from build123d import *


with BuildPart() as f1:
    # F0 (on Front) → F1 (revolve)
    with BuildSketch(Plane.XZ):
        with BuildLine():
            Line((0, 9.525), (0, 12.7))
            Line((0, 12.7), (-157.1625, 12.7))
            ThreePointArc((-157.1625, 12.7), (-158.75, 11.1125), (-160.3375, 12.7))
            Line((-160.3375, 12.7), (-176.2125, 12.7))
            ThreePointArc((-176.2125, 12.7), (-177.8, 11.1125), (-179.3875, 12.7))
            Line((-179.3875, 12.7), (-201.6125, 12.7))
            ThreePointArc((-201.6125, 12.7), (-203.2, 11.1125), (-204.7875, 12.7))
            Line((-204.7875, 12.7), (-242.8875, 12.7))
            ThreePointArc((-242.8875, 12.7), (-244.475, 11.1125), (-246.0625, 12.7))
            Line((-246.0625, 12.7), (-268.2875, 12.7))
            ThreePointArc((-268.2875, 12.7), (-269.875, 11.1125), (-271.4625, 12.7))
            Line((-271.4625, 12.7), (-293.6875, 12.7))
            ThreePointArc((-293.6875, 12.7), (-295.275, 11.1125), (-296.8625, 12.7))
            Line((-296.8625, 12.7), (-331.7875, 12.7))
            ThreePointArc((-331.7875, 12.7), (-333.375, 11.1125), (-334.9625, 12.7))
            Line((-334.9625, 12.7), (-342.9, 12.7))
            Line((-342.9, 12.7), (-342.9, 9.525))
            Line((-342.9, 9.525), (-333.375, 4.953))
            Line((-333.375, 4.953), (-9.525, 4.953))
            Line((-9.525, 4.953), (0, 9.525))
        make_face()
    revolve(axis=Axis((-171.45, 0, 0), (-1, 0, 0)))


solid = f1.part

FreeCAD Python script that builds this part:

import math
import FreeCAD as App
import Part
import Sketcher

V = App.Vector
Q = App.Units.Quantity

doc = App.newDocument("Part")
params = doc.addObject("Spreadsheet::Sheet", "Params")
for row, (alias, value) in enumerate([
    ("sketch1_width", "1.5 in"),
    ("sketch1_radius", "0.0625 in"),
    ("sketch1_width2", "12.75 in"),
    ("sketch1_width3", "6.1875 in"),
    ("sketch1_height", "0.125 in"),
    ("revolution_angle", "360 deg"),
], start=1):
    params.set(f"A{row}", alias)
    params.set(f"B{row}", "=" + value)
    params.setAlias(f"B{row}", alias)

body = doc.addObject("PartDesign::Body", "Body")

# Sketch on XZ plane
sketch1 = body.newObject("Sketcher::SketchObject", "Sketch")
sketch1.AttachmentSupport = (doc.getObject("XZ_Plane"), [""])
sketch1.MapMode = "FlatFace"
sketch1.addGeometry([
    Part.LineSegment(V(0, 9.525, 0), V(0, 12.7, 0)),  # 0
    Part.LineSegment(V(0, 12.7, 0), V(-157.1625, 12.7, 0)),  # 1
    Part.ArcOfCircle(Part.Circle(V(-158.75, 12.7, 0), V(0, 0, 1), 1.5875), math.radians(180), math.radians(360)),  # 2
    Part.LineSegment(V(-160.3375, 12.7, 0), V(-176.2125, 12.7, 0)),  # 3
    Part.ArcOfCircle(Part.Circle(V(-177.8, 12.7, 0), V(0, 0, 1), 1.5875), math.radians(180), math.radians(360)),  # 4
    Part.LineSegment(V(-179.3875, 12.7, 0), V(-201.6125, 12.7, 0)),  # 5
    Part.ArcOfCircle(Part.Circle(V(-203.2, 12.7, 0), V(0, 0, 1), 1.5875), math.radians(180), math.radians(360)),  # 6
    Part.LineSegment(V(-204.7875, 12.7, 0), V(-242.8875, 12.7, 0)),  # 7
    Part.ArcOfCircle(Part.Circle(V(-244.475, 12.7, 0), V(0, 0, 1), 1.5875), math.radians(180), math.radians(360)),  # 8
    Part.LineSegment(V(-246.0625, 12.7, 0), V(-268.2875, 12.7, 0)),  # 9
    Part.ArcOfCircle(Part.Circle(V(-269.875, 12.7, 0), V(0, 0, 1), 1.5875), math.radians(180), math.radians(360)),  # 10
    Part.LineSegment(V(-271.4625, 12.7, 0), V(-293.6875, 12.7, 0)),  # 11
    Part.ArcOfCircle(Part.Circle(V(-295.275, 12.7, 0), V(0, 0, 1), 1.5875), math.radians(180), math.radians(360)),  # 12
    Part.LineSegment(V(-296.8625, 12.7, 0), V(-331.7875, 12.7, 0)),  # 13
    Part.ArcOfCircle(Part.Circle(V(-333.375, 12.7, 0), V(0, 0, 1), 1.5875), math.radians(180), math.radians(360)),  # 14
    Part.LineSegment(V(-334.9625, 12.7, 0), V(-342.9, 12.7, 0)),  # 15
    Part.LineSegment(V(-342.9, 12.7, 0), V(-342.9, 9.525, 0)),  # 16
    Part.LineSegment(V(-342.9, 9.525, 0), V(-333.375, 4.953, 0)),  # 17
    Part.LineSegment(V(-333.375, 4.953, 0), V(-9.525, 4.953, 0)),  # 18
    Part.LineSegment(V(-9.525, 4.953, 0), V(0, 9.525, 0)),  # 19
], False)
sketch1.addConstraint([
    Sketcher.Constraint("Coincident", 0, 2, 1, 1),
    Sketcher.Constraint("Coincident", 1, 2, 2, 2),
    Sketcher.Constraint("Coincident", 2, 1, 3, 1),
    Sketcher.Constraint("Coincident", 3, 2, 4, 2),
    Sketcher.Constraint("Coincident", 4, 1, 5, 1),
    Sketcher.Constraint("Coincident", 5, 2, 6, 2),
    Sketcher.Constraint("Coincident", 6, 1, 7, 1),
    Sketcher.Constraint("Coincident", 7, 2, 8, 2),
    Sketcher.Constraint("Coincident", 8, 1, 9, 1),
    Sketcher.Constraint("Coincident", 9, 2, 10, 2),
    Sketcher.Constraint("Coincident", 10, 1, 11, 1),
    Sketcher.Constraint("Coincident", 11, 2, 12, 2),
    Sketcher.Constraint("Coincident", 12, 1, 13, 1),
    Sketcher.Constraint("Coincident", 13, 2, 14, 2),
    Sketcher.Constraint("Coincident", 14, 1, 15, 1),
    Sketcher.Constraint("Coincident", 15, 2, 16, 1),
    Sketcher.Constraint("Coincident", 16, 2, 17, 1),
    Sketcher.Constraint("Coincident", 17, 2, 18, 1),
    Sketcher.Constraint("Coincident", 18, 2, 19, 1),
    Sketcher.Constraint("Coincident", 19, 2, 0, 1),
    Sketcher.Constraint("Vertical", 0),
    Sketcher.Constraint("Horizontal", 1),
    Sketcher.Constraint("Horizontal", 3),
    Sketcher.Constraint("Horizontal", 5),
    Sketcher.Constraint("Horizontal", 7),
    Sketcher.Constraint("Horizontal", 9),
    Sketcher.Constraint("Horizontal", 11),
    Sketcher.Constraint("Horizontal", 13),
    Sketcher.Constraint("Horizontal", 15),
    Sketcher.Constraint("Vertical", 16),
    Sketcher.Constraint("Horizontal", 18),
    Sketcher.Constraint("Equal", 2, 4),
    Sketcher.Constraint("Equal", 4, 6),
    Sketcher.Constraint("Equal", 6, 8),
    Sketcher.Constraint("Equal", 8, 10),
    Sketcher.Constraint("Equal", 10, 12),
    Sketcher.Constraint("Equal", 12, 14),
    Sketcher.Constraint("PointOnObject", 0, 2, -2),
    Sketcher.Constraint("Horizontal", 2, 3, 4, 3),
    Sketcher.Constraint("Horizontal", 4, 3, 6, 3),
    Sketcher.Constraint("Horizontal", 6, 3, 8, 3),
    Sketcher.Constraint("Horizontal", 8, 3, 10, 3),
    Sketcher.Constraint("Horizontal", 10, 3, 12, 3),
    Sketcher.Constraint("Horizontal", 12, 3, 14, 3),
    Sketcher.Constraint("Horizontal", 14, 3, 0, 2),
    Sketcher.Constraint("Horizontal", 1, 2, 2, 1),
    Sketcher.Constraint("Horizontal", 3, 2, 4, 1),
    Sketcher.Constraint("Horizontal", 5, 2, 6, 1),
    Sketcher.Constraint("Horizontal", 7, 2, 8, 1),
    Sketcher.Constraint("Horizontal", 9, 2, 10, 1),
    Sketcher.Constraint("Horizontal", 11, 2, 12, 1),
    Sketcher.Constraint("Horizontal", 13, 2, 14, 1),
    Sketcher.Constraint("Horizontal", 16, 2, 19, 2),
    Sketcher.Constraint("Vertical", 14, 3, 17, 2),
    Sketcher.Constraint("Equal", 5, 9),
    Sketcher.Constraint("Equal", 9, 11),
    Sketcher.Constraint("Equal", 17, 19),
    Sketcher.Constraint("DistanceX", 7, 2, 7, 1, Q("1.5 in")),
    Sketcher.Constraint("DistanceX", 4, 3, -1, 1, Q("7 in")),
    Sketcher.Constraint("DistanceX", 6, 3, -1, 1, Q("8 in")),
    Sketcher.Constraint("Radius", 2, Q("0.0625 in")),
    Sketcher.Constraint("DistanceX", 18, 1, 18, 2, Q("12.75 in")),
    Sketcher.Constraint("DistanceY", -1, 1, 2, 3, Q("0.5 in")),
    Sketcher.Constraint("DistanceX", 15, 2, -1, 1, Q("13.5 in")),
    Sketcher.Constraint("DistanceX", 1, 2, 1, 1, Q("6.1875 in")),
    Sketcher.Constraint("DistanceY", 0, 1, 0, 2, Q("0.125 in")),
    Sketcher.Constraint("DistanceY", 17, 2, 16, 2, Q("0.18 in")),
])
sketch1.setExpression("Constraints[57]", "Params.sketch1_width")
sketch1.setExpression("Constraints[60]", "Params.sketch1_radius")
sketch1.setExpression("Constraints[61]", "Params.sketch1_width2")
sketch1.setExpression("Constraints[64]", "Params.sketch1_width3")
sketch1.setExpression("Constraints[65]", "Params.sketch1_height")
revolution = body.newObject("PartDesign::Revolution", "Revolution")
revolution.Profile = sketch1
revolution.ReferenceAxis = (sketch1, ["H_Axis"])
revolution.setExpression("Angle", "Params.revolution_angle")

doc.recompute()
